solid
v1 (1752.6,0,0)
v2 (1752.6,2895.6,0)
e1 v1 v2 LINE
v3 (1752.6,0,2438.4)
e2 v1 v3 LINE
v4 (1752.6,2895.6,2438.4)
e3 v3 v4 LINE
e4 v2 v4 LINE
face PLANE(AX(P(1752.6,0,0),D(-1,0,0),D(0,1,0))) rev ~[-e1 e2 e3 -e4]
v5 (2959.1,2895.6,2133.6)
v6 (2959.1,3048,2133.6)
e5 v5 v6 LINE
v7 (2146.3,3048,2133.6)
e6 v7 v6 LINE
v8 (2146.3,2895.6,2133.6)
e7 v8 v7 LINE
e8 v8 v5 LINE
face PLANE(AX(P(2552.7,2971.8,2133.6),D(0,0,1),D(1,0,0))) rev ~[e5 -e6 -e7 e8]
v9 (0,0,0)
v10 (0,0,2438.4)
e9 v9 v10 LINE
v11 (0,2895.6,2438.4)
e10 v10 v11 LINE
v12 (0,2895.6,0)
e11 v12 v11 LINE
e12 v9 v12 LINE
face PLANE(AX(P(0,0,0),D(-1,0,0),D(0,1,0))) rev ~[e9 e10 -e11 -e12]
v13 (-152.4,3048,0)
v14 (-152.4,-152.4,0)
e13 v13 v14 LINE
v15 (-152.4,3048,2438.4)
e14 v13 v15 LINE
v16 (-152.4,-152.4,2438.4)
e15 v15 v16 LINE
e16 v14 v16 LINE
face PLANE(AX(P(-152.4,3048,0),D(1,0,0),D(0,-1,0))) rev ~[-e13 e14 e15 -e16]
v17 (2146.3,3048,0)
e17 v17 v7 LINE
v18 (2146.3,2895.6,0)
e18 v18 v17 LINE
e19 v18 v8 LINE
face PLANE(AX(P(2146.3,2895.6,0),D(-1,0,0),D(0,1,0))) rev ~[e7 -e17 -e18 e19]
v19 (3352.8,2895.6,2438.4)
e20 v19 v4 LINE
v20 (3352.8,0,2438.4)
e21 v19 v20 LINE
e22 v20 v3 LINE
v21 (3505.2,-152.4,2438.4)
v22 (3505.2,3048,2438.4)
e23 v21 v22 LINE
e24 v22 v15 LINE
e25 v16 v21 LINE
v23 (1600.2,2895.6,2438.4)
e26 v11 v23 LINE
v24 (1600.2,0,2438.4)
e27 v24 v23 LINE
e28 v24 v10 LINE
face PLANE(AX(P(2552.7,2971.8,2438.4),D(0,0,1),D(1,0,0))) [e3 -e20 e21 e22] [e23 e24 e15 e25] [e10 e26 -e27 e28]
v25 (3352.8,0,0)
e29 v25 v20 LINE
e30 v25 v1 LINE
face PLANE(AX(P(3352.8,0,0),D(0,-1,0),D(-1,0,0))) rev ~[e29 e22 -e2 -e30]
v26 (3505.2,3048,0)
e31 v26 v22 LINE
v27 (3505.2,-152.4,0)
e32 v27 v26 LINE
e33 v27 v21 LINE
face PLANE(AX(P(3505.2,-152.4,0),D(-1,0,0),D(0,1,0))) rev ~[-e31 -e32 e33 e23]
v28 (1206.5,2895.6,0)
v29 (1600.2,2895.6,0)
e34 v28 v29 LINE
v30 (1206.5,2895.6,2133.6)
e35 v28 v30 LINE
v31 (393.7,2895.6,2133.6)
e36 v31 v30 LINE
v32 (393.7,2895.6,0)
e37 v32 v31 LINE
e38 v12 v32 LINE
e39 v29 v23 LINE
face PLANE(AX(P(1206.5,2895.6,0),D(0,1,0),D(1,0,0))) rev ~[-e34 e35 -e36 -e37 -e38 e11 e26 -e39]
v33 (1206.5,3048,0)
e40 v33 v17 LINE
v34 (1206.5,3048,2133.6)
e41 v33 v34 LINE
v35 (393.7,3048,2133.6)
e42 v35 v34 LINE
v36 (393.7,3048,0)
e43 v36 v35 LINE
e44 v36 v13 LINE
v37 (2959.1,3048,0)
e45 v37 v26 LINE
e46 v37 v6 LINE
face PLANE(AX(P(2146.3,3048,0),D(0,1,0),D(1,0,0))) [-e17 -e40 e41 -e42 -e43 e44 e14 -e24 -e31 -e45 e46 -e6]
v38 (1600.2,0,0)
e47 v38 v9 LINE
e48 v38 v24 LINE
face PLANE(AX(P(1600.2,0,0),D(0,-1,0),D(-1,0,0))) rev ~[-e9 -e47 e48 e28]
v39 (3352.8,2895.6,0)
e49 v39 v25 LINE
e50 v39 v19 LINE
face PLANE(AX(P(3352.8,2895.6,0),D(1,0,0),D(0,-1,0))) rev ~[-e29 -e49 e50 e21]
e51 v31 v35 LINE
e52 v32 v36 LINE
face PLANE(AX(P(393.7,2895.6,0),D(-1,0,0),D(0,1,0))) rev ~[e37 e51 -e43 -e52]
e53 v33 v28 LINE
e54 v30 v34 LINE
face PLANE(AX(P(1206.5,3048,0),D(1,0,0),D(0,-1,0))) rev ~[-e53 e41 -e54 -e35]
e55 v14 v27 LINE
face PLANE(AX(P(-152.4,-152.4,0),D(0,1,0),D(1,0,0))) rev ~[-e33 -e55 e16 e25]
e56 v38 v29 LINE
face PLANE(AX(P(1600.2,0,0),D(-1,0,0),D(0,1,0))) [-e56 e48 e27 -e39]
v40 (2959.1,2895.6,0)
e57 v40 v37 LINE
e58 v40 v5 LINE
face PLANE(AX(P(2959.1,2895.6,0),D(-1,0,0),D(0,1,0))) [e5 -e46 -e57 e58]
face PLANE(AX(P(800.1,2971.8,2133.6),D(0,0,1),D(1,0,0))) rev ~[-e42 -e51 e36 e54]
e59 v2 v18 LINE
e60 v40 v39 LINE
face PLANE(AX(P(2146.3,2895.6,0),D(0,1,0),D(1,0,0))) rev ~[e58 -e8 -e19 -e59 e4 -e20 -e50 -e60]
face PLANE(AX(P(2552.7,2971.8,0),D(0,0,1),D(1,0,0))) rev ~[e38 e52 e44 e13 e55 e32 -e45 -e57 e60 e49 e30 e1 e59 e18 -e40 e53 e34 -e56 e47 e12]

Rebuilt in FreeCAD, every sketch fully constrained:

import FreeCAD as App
import Part
import Sketcher
Q = App.Units.Quantity

doc = App.newDocument("Part")
body = doc.addObject("PartDesign::Body", "Body")

sketch1 = body.newObject("Sketcher::SketchObject", "Sketch")
sketch1.AttachmentSupport = (doc.getObject("XY_Plane"), [""])
sketch1.MapMode = "FlatFace"
sketch1.addGeometry([
    Part.LineSegment(App.Vector(3353, 2896, 0), App.Vector(3353, 0, 0)),
    Part.LineSegment(App.Vector(3353, 0, 0), App.Vector(1753, 0, 0)),
    Part.LineSegment(App.Vector(1753, 0, 0), App.Vector(1753, 2896, 0)),
    Part.LineSegment(App.Vector(1753, 2896, 0), App.Vector(1600, 2896, 0)),
    Part.LineSegment(App.Vector(1600, 2896, 0), App.Vector(1600, 0, 0)),
    Part.LineSegment(App.Vector(1600, 0, 0), App.Vector(0, 0, 0)),
    Part.LineSegment(App.Vector(0, 0, 0), App.Vector(0, 2896, 0)),
    Part.LineSegment(App.Vector(0, 2896, 0), App.Vector(1206, 2896, 0)),
    Part.LineSegment(App.Vector(1206, 2896, 0), App.Vector(1206, 3048, 0)),
    Part.LineSegment(App.Vector(1206, 3048, 0), App.Vector(-152, 3048, 0)),
    Part.LineSegment(App.Vector(-152, 3048, 0), App.Vector(-152, -152, 0)),
    Part.LineSegment(App.Vector(-152, -152, 0), App.Vector(3505, -152, 0)),
    Part.LineSegment(App.Vector(3505, -152, 0), App.Vector(3505, 3048, 0)),
    Part.LineSegment(App.Vector(3505, 3048, 0), App.Vector(2959, 3048, 0)),
    Part.LineSegment(App.Vector(2959, 3048, 0), App.Vector(2959, 2896, 0)),
    Part.LineSegment(App.Vector(2959, 2896, 0), App.Vector(3353, 2896, 0)),
], False)
sketch1.addConstraint([
    Sketcher.Constraint("Coincident", 0, 2, 1, 1),
    Sketcher.Constraint("Coincident", 1, 2, 2, 1),
    Sketcher.Constraint("Coincident", 2, 2, 3, 1),
    Sketcher.Constraint("Coincident", 3, 2, 4, 1),
    Sketcher.Constraint("Coincident", 4, 2, 5, 1),
    Sketcher.Constraint("Coincident", 5, 2, 6, 1),
    Sketcher.Constraint("Coincident", 6, 2, 7, 1),
    Sketcher.Constraint("Coincident", 7, 2, 8, 1),
    Sketcher.Constraint("Coincident", 8, 2, 9, 1),
    Sketcher.Constraint("Coincident", 9, 2, 10, 1),
    Sketcher.Constraint("Coincident", 10, 2, 11, 1),
    Sketcher.Constraint("Coincident", 11, 2, 12, 1),
    Sketcher.Constraint("Coincident", 12, 2, 13, 1),
    Sketcher.Constraint("Coincident", 13, 2, 14, 1),
    Sketcher.Constraint("Coincident", 14, 2, 15, 1),
    Sketcher.Constraint("Coincident", 15, 2, 0, 1),
    Sketcher.Constraint("Vertical", 0),
    Sketcher.Constraint("Horizontal", 1),
    Sketcher.Constraint("Vertical", 2),
    Sketcher.Constraint("Horizontal", 3),
    Sketcher.Constraint("Vertical", 4),
    Sketcher.Constraint("Horizontal", 5),
    Sketcher.Constraint("Vertical", 6),
    Sketcher.Constraint("Horizontal", 7),
    Sketcher.Constraint("Vertical", 8),
    Sketcher.Constraint("Horizontal", 9),
    Sketcher.Constraint("Vertical", 10),
    Sketcher.Constraint("Horizontal", 11),
    Sketcher.Constraint("Vertical", 12),
    Sketcher.Constraint("Horizontal", 13),
    Sketcher.Constraint("Vertical", 14),
    Sketcher.Constraint("Horizontal", 15),
    Sketcher.Constraint("Coincident", 5, 2, -1, 1),
    Sketcher.Constraint("PointOnObject", 0, 2, -1),
    Sketcher.Constraint("Horizontal", 3, 2, 6, 2),
    Sketcher.Constraint("Horizontal", 9, 2, 12, 2),
    Sketcher.Constraint("Horizontal", 7, 2, 14, 2),
    Sketcher.Constraint("Equal", 1, 5),
    Sketcher.Constraint("Equal", 3, 8),
    Sketcher.Constraint("DistanceX", 1, 2, 1, 1, Q("63 in")),
    Sketcher.Constraint("DistanceX", 3, 2, 3, 1, Q("6 in")),
    Sketcher.Constraint("DistanceX", 11, 1, 11, 2, Q("144 in")),
    Sketcher.Constraint("DistanceY", 0, 2, 0, 1, Q("114 in")),
    Sketcher.Constraint("DistanceY", 10, 2, 10, 1, Q("126 in")),
    Sketcher.Constraint("DistanceX", 7, 1, 7, 2, Q("47.5 in")),
    Sketcher.Constraint("DistanceX", 9, 2, 9, 1, Q("53.5 in")),
    Sketcher.Constraint("DistanceX", 13, 2, 13, 1, Q("21.5 in")),
])
pad1 = body.newObject("PartDesign::Pad", "Pad")
pad1.Profile = sketch1
pad1.Length = Q("96 in")

sketch2 = body.newObject("Sketcher::SketchObject", "Sketch001")
sketch2.AttachmentSupport = (doc.getObject("XY_Plane"), [""])
sketch2.MapMode = "FlatFace"
sketch2.addGeometry([
    Part.LineSegment(App.Vector(394, 3048, 0), App.Vector(394, 2896, 0)),
    Part.LineSegment(App.Vector(394, 2896, 0), App.Vector(1206, 2896, 0)),
    Part.LineSegment(App.Vector(1206, 2896, 0), App.Vector(1206, 3048, 0)),
    Part.LineSegment(App.Vector(1206, 3048, 0), App.Vector(394, 3048, 0)),
], False)
sketch2.addConstraint([
    Sketcher.Constraint("Coincident", 0, 2, 1, 1),
    Sketcher.Constraint("Coincident", 1, 2, 2, 1),
    Sketcher.Constraint("Coincident", 2, 2, 3, 1),
    Sketcher.Constraint("Coincident", 3, 2, 0, 1),
    Sketcher.Constraint("Vertical", 0),
    Sketcher.Constraint("Horizontal", 1),
    Sketcher.Constraint("Vertical", 2),
    Sketcher.Constraint("Horizontal", 3),
    Sketcher.Constraint("DistanceX", 1, 1, 1, 2, Q("32 in")),
    Sketcher.Constraint("DistanceY", 0, 2, 0, 1, Q("6 in")),
    Sketcher.Constraint("DistanceY", -1, 1, 0, 2, Q("114 in")),
    Sketcher.Constraint("DistanceX", -1, 1, 0, 2, Q("15.5 in")),
])
pocket1 = body.newObject("PartDesign::Pocket", "Pocket")
pocket1.Profile = sketch2
pocket1.Length = Q("84 in")
pocket1.Reversed = True

sketch3 = body.newObject("Sketcher::SketchObject", "Sketch002")
sketch3.AttachmentSupport = (doc.getObject("XY_Plane"), [""])
sketch3.MapMode = "FlatFace"
sketch3.addGeometry([
    Part.LineSegment(App.Vector(2146, 2896, 0), App.Vector(2146, 3048, 0)),
    Part.LineSegment(App.Vector(2146, 3048, 0), App.Vector(1206, 3048, 0)),
    Part.LineSegment(App.Vector(1206, 3048, 0), App.Vector(1206, 2896, 0)),
    Part.LineSegment(App.Vector(1206, 2896, 0), App.Vector(2146, 2896, 0)),
], False)
sketch3.addConstraint([
    Sketcher.Constraint("Coincident", 0, 2, 1, 1),
    Sketcher.Constraint("Coincident", 1, 2, 2, 1),
    Sketcher.Constraint("Coincident", 2, 2, 3, 1),
    Sketcher.Constraint("Coincident", 3, 2, 0, 1),
    Sketcher.Constraint("Vertical", 0),
    Sketcher.Constraint("Horizontal", 1),
    Sketcher.Constraint("Vertical", 2),
    Sketcher.Constraint("Horizontal", 3),
    Sketcher.Constraint("DistanceX", 1, 2, 1, 1, Q("37 in")),
    Sketcher.Constraint("DistanceY", 0, 1, 0, 2, Q("6 in")),
    Sketcher.Constraint("DistanceY", -1, 1, 0, 2, Q("120 in")),
    Sketcher.Constraint("DistanceX", -1, 1, 0, 2, Q("84.5 in")),
])
pad2 = body.newObject("PartDesign::Pad", "Pad001")
pad2.Profile = sketch3
pad2.Length = Q("96 in")

sketch4 = body.newObject("Sketcher::SketchObject", "Sketch003")
sketch4.AttachmentSupport = (doc.getObject("XY_Plane"), [""])
sketch4.MapMode = "FlatFace"
sketch4.addGeometry([
    Part.LineSegment(App.Vector(2146, 3048, 0), App.Vector(2146, 2896, 0)),
    Part.LineSegment(App.Vector(2146, 2896, 0), App.Vector(2959, 2896, 0)),
    Part.LineSegment(App.Vector(2959, 2896, 0), App.Vector(2959, 3048, 0)),
    Part.LineSegment(App.Vector(2959, 3048, 0), App.Vector(2146, 3048, 0)),
], False)
sketch4.addConstraint([
    Sketcher.Constraint("Coincident", 0, 2, 1, 1),
    Sketcher.Constraint("Coincident", 1, 2, 2, 1),
    Sketcher.Constraint("Coincident", 2, 2, 3, 1),
    Sketcher.Constraint("Coincident", 3, 2, 0, 1),
    Sketcher.Constraint("Vertical", 0),
    Sketcher.Constraint("Horizontal", 1),
    Sketcher.Constraint("Vertical", 2),
    Sketcher.Constraint("Horizontal", 3),
    Sketcher.Constraint("DistanceX", 1, 1, 1, 2, Q("32 in")),
    Sketcher.Constraint("DistanceY", 0, 2, 0, 1, Q("6 in")),
    Sketcher.Constraint("DistanceY", -1, 1, 0, 2, Q("114 in")),
    Sketcher.Constraint("DistanceX", -1, 1, 0, 2, Q("84.5 in")),
])
pad3 = body.newObject("PartDesign::Pad", "Pad002")
pad3.Profile = sketch4
pad3.Length = Q("96 in")

sketch5 = body.newObject("Sketcher::SketchObject", "Sketch004")
sketch5.AttachmentSupport = (doc.getObject("XY_Plane"), [""])
sketch5.MapMode = "FlatFace"
sketch5.addGeometry([
    Part.LineSegment(App.Vector(2146, 3048, 0), App.Vector(2146, 2896, 0)),
    Part.LineSegment(App.Vector(2146, 2896, 0), App.Vector(2959, 2896, 0)),
    Part.LineSegment(App.Vector(2959, 2896, 0), App.Vector(2959, 3048, 0)),
    Part.LineSegment(App.Vector(2959, 3048, 0), App.Vector(2146, 3048, 0)),
], False)
sketch5.addConstraint([
    Sketcher.Constraint("Coincident", 0, 2, 1, 1),
    Sketcher.Constraint("Coincident", 1, 2, 2, 1),
    Sketcher.Constraint("Coincident", 2, 2, 3, 1),
    Sketcher.Constraint("Coincident", 3, 2, 0, 1),
    Sketcher.Constraint("Vertical", 0),
    Sketcher.Constraint("Horizontal", 1),
    Sketcher.Constraint("Vertical", 2),
    Sketcher.Constraint("Horizontal", 3),
    Sketcher.Constraint("DistanceX", 1, 1, 1, 2, Q("32 in")),
    Sketcher.Constraint("DistanceY", 0, 2, 0, 1, Q("6 in")),
    Sketcher.Constraint("DistanceY", -1, 1, 0, 2, Q("114 in")),
    Sketcher.Constraint("DistanceX", -1, 1, 0, 2, Q("84.5 in")),
])
pocket2 = body.newObject("PartDesign::Pocket", "Pocket001")
pocket2.Profile = sketch5
pocket2.Length = Q("84 in")
pocket2.Reversed = True

doc.recompute()
